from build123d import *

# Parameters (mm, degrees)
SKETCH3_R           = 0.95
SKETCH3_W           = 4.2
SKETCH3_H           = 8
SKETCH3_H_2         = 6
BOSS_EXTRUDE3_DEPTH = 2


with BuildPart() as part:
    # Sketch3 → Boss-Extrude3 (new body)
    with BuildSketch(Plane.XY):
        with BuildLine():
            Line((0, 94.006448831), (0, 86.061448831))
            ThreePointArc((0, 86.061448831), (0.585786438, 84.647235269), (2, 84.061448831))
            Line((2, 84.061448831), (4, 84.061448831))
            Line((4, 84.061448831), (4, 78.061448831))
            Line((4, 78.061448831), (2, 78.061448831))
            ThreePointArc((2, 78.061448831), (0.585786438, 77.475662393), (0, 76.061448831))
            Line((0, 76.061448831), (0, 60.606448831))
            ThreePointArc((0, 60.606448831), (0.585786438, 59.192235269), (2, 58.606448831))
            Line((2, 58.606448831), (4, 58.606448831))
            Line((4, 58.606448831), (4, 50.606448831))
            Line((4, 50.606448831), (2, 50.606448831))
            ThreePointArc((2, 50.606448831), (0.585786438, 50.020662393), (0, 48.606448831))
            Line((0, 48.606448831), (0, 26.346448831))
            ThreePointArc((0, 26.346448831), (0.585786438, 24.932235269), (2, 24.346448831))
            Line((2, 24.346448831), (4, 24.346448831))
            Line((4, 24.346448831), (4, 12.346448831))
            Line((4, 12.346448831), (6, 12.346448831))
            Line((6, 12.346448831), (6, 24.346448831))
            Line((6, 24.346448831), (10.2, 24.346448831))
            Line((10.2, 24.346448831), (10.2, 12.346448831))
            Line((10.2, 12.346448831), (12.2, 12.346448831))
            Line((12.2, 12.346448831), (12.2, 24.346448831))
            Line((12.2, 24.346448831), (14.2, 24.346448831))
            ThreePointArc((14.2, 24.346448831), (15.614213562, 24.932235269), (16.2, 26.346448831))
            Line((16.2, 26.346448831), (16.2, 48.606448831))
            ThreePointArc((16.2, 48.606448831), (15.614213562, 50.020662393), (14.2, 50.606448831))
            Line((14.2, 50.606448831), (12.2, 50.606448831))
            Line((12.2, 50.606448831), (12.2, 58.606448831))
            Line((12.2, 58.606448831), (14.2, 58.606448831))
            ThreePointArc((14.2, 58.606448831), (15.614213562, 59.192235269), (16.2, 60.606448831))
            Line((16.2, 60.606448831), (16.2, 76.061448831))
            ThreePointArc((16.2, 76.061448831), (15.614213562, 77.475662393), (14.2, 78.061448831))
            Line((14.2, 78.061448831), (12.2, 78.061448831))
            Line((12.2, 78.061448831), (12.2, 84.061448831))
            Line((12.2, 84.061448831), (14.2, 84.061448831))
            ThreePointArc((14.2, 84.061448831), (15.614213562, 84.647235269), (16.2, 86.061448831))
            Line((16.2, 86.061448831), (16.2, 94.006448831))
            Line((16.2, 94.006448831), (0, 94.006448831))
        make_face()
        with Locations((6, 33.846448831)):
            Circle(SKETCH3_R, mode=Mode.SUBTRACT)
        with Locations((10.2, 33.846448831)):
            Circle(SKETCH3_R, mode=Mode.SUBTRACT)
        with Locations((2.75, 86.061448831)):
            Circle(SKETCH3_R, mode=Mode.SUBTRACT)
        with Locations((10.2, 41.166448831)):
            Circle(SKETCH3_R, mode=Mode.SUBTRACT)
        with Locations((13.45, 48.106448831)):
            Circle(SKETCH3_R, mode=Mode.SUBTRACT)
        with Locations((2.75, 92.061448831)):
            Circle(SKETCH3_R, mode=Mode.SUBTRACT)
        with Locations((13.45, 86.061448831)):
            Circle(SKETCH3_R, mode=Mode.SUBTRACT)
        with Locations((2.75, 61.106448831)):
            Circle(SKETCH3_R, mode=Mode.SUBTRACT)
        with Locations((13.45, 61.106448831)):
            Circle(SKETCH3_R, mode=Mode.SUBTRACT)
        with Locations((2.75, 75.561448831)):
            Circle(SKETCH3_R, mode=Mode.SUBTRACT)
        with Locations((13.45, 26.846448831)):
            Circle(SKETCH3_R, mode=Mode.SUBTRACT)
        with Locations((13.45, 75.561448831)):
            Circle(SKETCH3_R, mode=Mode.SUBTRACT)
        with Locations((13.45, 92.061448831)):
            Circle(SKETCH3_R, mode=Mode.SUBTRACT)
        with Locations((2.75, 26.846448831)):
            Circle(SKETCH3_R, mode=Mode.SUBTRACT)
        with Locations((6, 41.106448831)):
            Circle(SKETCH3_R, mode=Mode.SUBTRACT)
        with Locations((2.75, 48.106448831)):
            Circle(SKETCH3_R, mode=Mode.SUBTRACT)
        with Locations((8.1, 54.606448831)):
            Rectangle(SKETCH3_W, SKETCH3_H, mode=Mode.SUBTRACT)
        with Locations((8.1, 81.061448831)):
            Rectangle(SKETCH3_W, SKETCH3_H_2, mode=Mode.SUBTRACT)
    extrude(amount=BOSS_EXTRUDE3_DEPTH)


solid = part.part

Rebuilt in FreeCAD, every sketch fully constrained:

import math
import FreeCAD as App
import Part
import Sketcher

doc = App.newDocument("Part")
body = doc.addObject("PartDesign::Body", "Body")

sketch1 = doc.addObject("Sketcher::SketchObject", "Sketch")
body.addObject(sketch1)
sketch1.AttachmentSupport = (doc.XY_Plane, [""])
sketch1.MapMode = "FlatFace"
sketch1.addGeometry([
    Part.LineSegment(App.Vector(0, 94.006449, 0), App.Vector(0, 86.061449, 0)),
    Part.ArcOfCircle(Part.Circle(App.Vector(2, 86.061449, 0), App.Vector(0, 0, 1), 2), math.radians(-180), math.radians(-90)),
    Part.LineSegment(App.Vector(2, 84.061449, 0), App.Vector(4, 84.061449, 0)),
    Part.LineSegment(App.Vector(4, 84.061449, 0), App.Vector(4, 78.061449, 0)),
    Part.LineSegment(App.Vector(4, 78.061449, 0), App.Vector(2, 78.061449, 0)),
    Part.ArcOfCircle(Part.Circle(App.Vector(2, 76.061449, 0), App.Vector(0, 0, 1), 2), math.radians(90), math.radians(180)),
    Part.LineSegment(App.Vector(0, 76.061449, 0), App.Vector(0, 60.606449, 0)),
    Part.ArcOfCircle(Part.Circle(App.Vector(2, 60.606449, 0), App.Vector(0, 0, 1), 2), math.radians(-180), math.radians(-90)),
    Part.LineSegment(App.Vector(2, 58.606449, 0), App.Vector(4, 58.606449, 0)),
    Part.LineSegment(App.Vector(4, 58.606449, 0), App.Vector(4, 50.606449, 0)),
    Part.LineSegment(App.Vector(4, 50.606449, 0), App.Vector(2, 50.606449, 0)),
    Part.ArcOfCircle(Part.Circle(App.Vector(2, 48.606449, 0), App.Vector(0, 0, 1), 2), math.radians(90), math.radians(180)),
    Part.LineSegment(App.Vector(0, 48.606449, 0), App.Vector(0, 26.346449, 0)),
    Part.ArcOfCircle(Part.Circle(App.Vector(2, 26.346449, 0), App.Vector(0, 0, 1), 2), math.radians(-180), math.radians(-90)),
    Part.LineSegment(App.Vector(2, 24.346449, 0), App.Vector(4, 24.346449, 0)),
    Part.LineSegment(App.Vector(4, 24.346449, 0), App.Vector(4, 12.346449, 0)),
    Part.LineSegment(App.Vector(4, 12.346449, 0), App.Vector(6, 12.346449, 0)),
    Part.LineSegment(App.Vector(6, 12.346449, 0), App.Vector(6, 24.346449, 0)),
    Part.LineSegment(App.Vector(6, 24.346449, 0), App.Vector(10.2, 24.346449, 0)),
    Part.LineSegment(App.Vector(10.2, 24.346449, 0), App.Vector(10.2, 12.346449, 0)),
    Part.LineSegment(App.Vector(10.2, 12.346449, 0), App.Vector(12.2, 12.346449, 0)),
    Part.LineSegment(App.Vector(12.2, 12.346449, 0), App.Vector(12.2, 24.346449, 0)),
    Part.LineSegment(App.Vector(12.2, 24.346449, 0), App.Vector(14.2, 24.346449, 0)),
    Part.ArcOfCircle(Part.Circle(App.Vector(14.2, 26.346449, 0), App.Vector(0, 0, 1), 2), math.radians(-90), math.radians(0)),
    Part.LineSegment(App.Vector(16.2, 26.346449, 0), App.Vector(16.2, 48.606449, 0)),
    Part.ArcOfCircle(Part.Circle(App.Vector(14.2, 48.606449, 0), App.Vector(0, 0, 1), 2), math.radians(0), math.radians(90)),
    Part.LineSegment(App.Vector(14.2, 50.606449, 0), App.Vector(12.2, 50.606449, 0)),
    Part.LineSegment(App.Vector(12.2, 50.606449, 0), App.Vector(12.2, 58.606449, 0)),
    Part.LineSegment(App.Vector(12.2, 58.606449, 0), App.Vector(14.2, 58.606449, 0)),
    Part.ArcOfCircle(Part.Circle(App.Vector(14.2, 60.606449, 0), App.Vector(0, 0, 1), 2), math.radians(-90), math.radians(0)),
    Part.LineSegment(App.Vector(16.2, 60.606449, 0), App.Vector(16.2, 76.061449, 0)),
    Part.ArcOfCircle(Part.Circle(App.Vector(14.2, 76.061449, 0), App.Vector(0, 0, 1), 2), math.radians(0), math.radians(90)),
    Part.LineSegment(App.Vector(14.2, 78.061449, 0), App.Vector(12.2, 78.061449, 0)),
    Part.LineSegment(App.Vector(12.2, 78.061449, 0), App.Vector(12.2, 84.061449, 0)),
    Part.LineSegment(App.Vector(12.2, 84.061449, 0), App.Vector(14.2, 84.061449, 0)),
    Part.ArcOfCircle(Part.Circle(App.Vector(14.2, 86.061449, 0), App.Vector(0, 0, 1), 2), math.radians(-90), math.radians(0)),
    Part.LineSegment(App.Vector(16.2, 86.061449, 0), App.Vector(16.2, 94.006449, 0)),
    Part.LineSegment(App.Vector(16.2, 94.006449, 0), App.Vector(0, 94.006449, 0)),
    Part.Circle(App.Vector(2.75, 26.846449, 0), App.Vector(0, 0, 1), 0.95),
    Part.Circle(App.Vector(6, 33.846449, 0), App.Vector(0, 0, 1), 0.95),
    Part.Circle(App.Vector(6, 41.106449, 0), App.Vector(0, 0, 1), 0.95),
    Part.Circle(App.Vector(2.75, 48.106449, 0), App.Vector(0, 0, 1), 0.95),
    Part.Circle(App.Vector(10.2, 33.846449, 0), App.Vector(0, 0, 1), 0.95),
    Part.Circle(App.Vector(10.2, 41.166449, 0), App.Vector(0, 0, 1), 0.95),
    Part.Circle(App.Vector(13.45, 26.846449, 0), App.Vector(0, 0, 1), 0.95),
    Part.LineSegment(App.Vector(10.2, 50.606449, 0), App.Vector(6, 50.606449, 0)),
    Part.LineSegment(App.Vector(6, 50.606449, 0), App.Vector(6, 58.606449, 0)),
    Part.LineSegment(App.Vector(6, 58.606449, 0), App.Vector(10.2, 58.606449, 0)),
    Part.LineSegment(App.Vector(10.2, 58.606449, 0), App.Vector(10.2, 50.606449, 0)),
    Part.Circle(App.Vector(13.45, 48.106449, 0), App.Vector(0, 0, 1), 0.95),
    Part.Circle(App.Vector(2.75, 61.106449, 0), App.Vector(0, 0, 1), 0.95),
    Part.Circle(App.Vector(2.75, 75.561449, 0), App.Vector(0, 0, 1), 0.95),
    Part.Circle(App.Vector(2.75, 86.061449, 0), App.Vector(0, 0, 1), 0.95),
    Part.Circle(App.Vector(2.75, 92.061449, 0), App.Vector(0, 0, 1), 0.95),
    Part.Circle(App.Vector(13.45, 61.106449, 0), App.Vector(0, 0, 1), 0.95),
    Part.Circle(App.Vector(13.45, 75.561449, 0), App.Vector(0, 0, 1), 0.95),
    Part.LineSegment(App.Vector(10.2, 78.061449, 0), App.Vector(6, 78.061449, 0)),
    Part.LineSegment(App.Vector(6, 78.061449, 0), App.Vector(6, 84.061449, 0)),
    Part.LineSegment(App.Vector(6, 84.061449, 0), App.Vector(10.2, 84.061449, 0)),
    Part.LineSegment(App.Vector(10.2, 84.061449, 0), App.Vector(10.2, 78.061449, 0)),
    Part.Circle(App.Vector(13.45, 86.061449, 0), App.Vector(0, 0, 1), 0.95),
    Part.Circle(App.Vector(13.45, 92.061449, 0), App.Vector(0, 0, 1), 0.95),
], False)
sketch1.addConstraint([
    Sketcher.Constraint("Tangent", 0, 2, 1, 1),
    Sketcher.Constraint("Tangent", 1, 2, 2, 1),
    Sketcher.Constraint("Coincident", 2, 2, 3, 1),
    Sketcher.Constraint("Coincident", 3, 2, 4, 1),
    Sketcher.Constraint("Tangent", 4, 2, 5, 1),
    Sketcher.Constraint("Tangent", 5, 2, 6, 1),
    Sketcher.Constraint("Tangent", 6, 2, 7, 1),
    Sketcher.Constraint("Tangent", 7, 2, 8, 1),
    Sketcher.Constraint("Coincident", 8, 2, 9, 1),
    Sketcher.Constraint("Coincident", 9, 2, 10, 1),
    Sketcher.Constraint("Tangent", 10, 2, 11, 1),
    Sketcher.Constraint("Tangent", 11, 2, 12, 1),
    Sketcher.Constraint("Tangent", 12, 2, 13, 1),
    Sketcher.Constraint("Tangent", 13, 2, 14, 1),
    Sketcher.Constraint("Coincident", 14, 2, 15, 1),
    Sketcher.Constraint("Coincident", 15, 2, 16, 1),
    Sketcher.Constraint("Coincident", 16, 2, 17, 1),
    Sketcher.Constraint("Coincident", 17, 2, 18, 1),
    Sketcher.Constraint("Coincident", 18, 2, 19, 1),
    Sketcher.Constraint("Coincident", 19, 2, 20, 1),
    Sketcher.Constraint("Coincident", 20, 2, 21, 1),
    Sketcher.Constraint("Coincident", 21, 2, 22, 1),
    Sketcher.Constraint("Tangent", 22, 2, 23, 1),
    Sketcher.Constraint("Tangent", 23, 2, 24, 1),
    Sketcher.Constraint("Tangent", 24, 2, 25, 1),
    Sketcher.Constraint("Tangent", 25, 2, 26, 1),
    Sketcher.Constraint("Coincident", 26, 2, 27, 1),
    Sketcher.Constraint("Coincident", 27, 2, 28, 1),
    Sketcher.Constraint("Tangent", 28, 2, 29, 1),
    Sketcher.Constraint("Tangent", 29, 2, 30, 1),
    Sketcher.Constraint("Tangent", 30, 2, 31, 1),
    Sketcher.Constraint("Tangent", 31, 2, 32, 1),
    Sketcher.Constraint("Coincident", 32, 2, 33, 1),
    Sketcher.Constraint("Coincident", 33, 2, 34, 1),
    Sketcher.Constraint("Tangent", 34, 2, 35, 1),
    Sketcher.Constraint("Tangent", 35, 2, 36, 1),
    Sketcher.Constraint("Coincident", 36, 2, 37, 1),
    Sketcher.Constraint("Coincident", 37, 2, 0, 1),
    Sketcher.Constraint("Coincident", 45, 2, 46, 1),
    Sketcher.Constraint("Coincident", 46, 2, 47, 1),
    Sketcher.Constraint("Coincident", 47, 2, 48, 1),
    Sketcher.Constraint("Coincident", 48, 2, 45, 1),
    Sketcher.Constraint("Coincident", 56, 2, 57, 1),
    Sketcher.Constraint("Coincident", 57, 2, 58, 1),
    Sketcher.Constraint("Coincident", 58, 2, 59, 1),
    Sketcher.Constraint("Coincident", 59, 2, 56, 1),
    Sketcher.Constraint("Vertical", 0),
    Sketcher.Constraint("Horizontal", 2),
    Sketcher.Constraint("Vertical", 3),
    Sketcher.Constraint("Horizontal", 4),
    Sketcher.Constraint("Vertical", 6),
    Sketcher.Constraint("Horizontal", 8),
    Sketcher.Constraint("Vertical", 9),
    Sketcher.Constraint("Horizontal", 10),
    Sketcher.Constraint("Vertical", 12),
    Sketcher.Constraint("Horizontal", 14),
    Sketcher.Constraint("Vertical", 15),
    Sketcher.Constraint("Horizontal", 16),
    Sketcher.Constraint("Vertical", 17),
    Sketcher.Constraint("Horizontal", 18),
    Sketcher.Constraint("Vertical", 19),
    Sketcher.Constraint("Horizontal", 20),
    Sketcher.Constraint("Vertical", 21),
    Sketcher.Constraint("Horizontal", 22),
    Sketcher.Constraint("Vertical", 24),
    Sketcher.Constraint("Horizontal", 26),
    Sketcher.Constraint("Vertical", 27),
    Sketcher.Constraint("Horizontal", 28),
    Sketcher.Constraint("Vertical", 30),
    Sketcher.Constraint("Horizontal", 32),
    Sketcher.Constraint("Vertical", 33),
    Sketcher.Constraint("Horizontal", 34),
    Sketcher.Constraint("Vertical", 36),
    Sketcher.Constraint("Horizontal", 37),
    Sketcher.Constraint("Horizontal", 45),
    Sketcher.Constraint("Vertical", 46),
    Sketcher.Constraint("Horizontal", 47),
    Sketcher.Constraint("Vertical", 48),
    Sketcher.Constraint("Horizontal", 56),
    Sketcher.Constraint("Vertical", 57),
    Sketcher.Constraint("Horizontal", 58),
    Sketcher.Constraint("Vertical", 59),
    Sketcher.Constraint("Equal", 1, 5),
    Sketcher.Constraint("Equal", 5, 7),
    Sketcher.Constraint("Equal", 7, 11),
    Sketcher.Constraint("Equal", 11, 13),
    Sketcher.Constraint("Equal", 13, 23),
    Sketcher.Constraint("Equal", 23, 25),
    Sketcher.Constraint("Equal", 25, 29),
    Sketcher.Constraint("Equal", 29, 31),
    Sketcher.Constraint("Equal", 31, 35),
    Sketcher.Constraint("Equal", 38, 39),
    Sketcher.Constraint("Equal", 39, 40),
    Sketcher.Constraint("Equal", 40, 41),
    Sketcher.Constraint("Equal", 41, 42),
    Sketcher.Constraint("Equal", 42, 43),
    Sketcher.Constraint("Equal", 43, 44),
    Sketcher.Constraint("Equal", 44, 49),
    Sketcher.Constraint("Equal", 49, 50),
    Sketcher.Constraint("Equal", 50, 51),
    Sketcher.Constraint("Equal", 51, 52),
    Sketcher.Constraint("Equal", 52, 53),
    Sketcher.Constraint("Equal", 53, 54),
    Sketcher.Constraint("Equal", 54, 55),
    Sketcher.Constraint("Equal", 55, 60),
    Sketcher.Constraint("Equal", 60, 61),
    Sketcher.Constraint("PointOnObject", 0, 2, -2),
    Sketcher.Constraint("PointOnObject", 5, 2, -2),
    Sketcher.Constraint("PointOnObject", 11, 2, -2),
    Sketcher.Constraint("Horizontal", 13, 3, 23, 3),
    Sketcher.Constraint("Horizontal", 11, 3, 25, 3),
    Sketcher.Constraint("Horizontal", 7, 3, 29, 3),
    Sketcher.Constraint("Horizontal", 5, 3, 31, 3),
    Sketcher.Constraint("Horizontal", 1, 3, 35, 3),
    Sketcher.Constraint("Horizontal", 39, 3, 42, 3),
    Sketcher.Constraint("Horizontal", 38, 3, 44, 3),
    Sketcher.Constraint("Horizontal", 41, 3, 49, 3),
    Sketcher.Constraint("Horizontal", 35, 3, 52, 3),
    Sketcher.Constraint("Horizontal", 50, 3, 54, 3),
    Sketcher.Constraint("Horizontal", 51, 3, 55, 3),
    Sketcher.Constraint("Horizontal", 52, 3, 60, 3),
    Sketcher.Constraint("Horizontal", 53, 3, 61, 3),
    Sketcher.Constraint("Horizontal", 14, 2, 17, 2),
    Sketcher.Constraint("Horizontal", 16, 2, 19, 2),
    Sketcher.Constraint("Horizontal", 26, 2, 45, 2),
    Sketcher.Constraint("Horizontal", 28, 2, 46, 2),
    Sketcher.Constraint("Horizontal", 32, 2, 56, 2),
    Sketcher.Constraint("Horizontal", 34, 2, 57, 2),
    Sketcher.Constraint("Vertical", 25, 3, 29, 3),
    Sketcher.Constraint("Vertical", 31, 3, 35, 3),
    Sketcher.Constraint("Vertical", 39, 3, 40, 3),
    Sketcher.Constraint("Vertical", 38, 3, 41, 3),
    Sketcher.Constraint("Vertical", 42, 3, 43, 3),
    Sketcher.Constraint("Vertical", 44, 3, 49, 3),
    Sketcher.Constraint("Vertical", 41, 3, 50, 3),
    Sketcher.Constraint("Vertical", 50, 3, 51, 3),
    Sketcher.Constraint("Vertical", 51, 3, 52, 3),
    Sketcher.Constraint("Vertical", 52, 3, 53, 3),
    Sketcher.Constraint("Vertical", 49, 3, 54, 3),
    Sketcher.Constraint("Vertical", 54, 3, 55, 3),
    Sketcher.Constraint("Vertical", 55, 3, 60, 3),
    Sketcher.Constraint("Vertical", 60, 3, 61, 3),
    Sketcher.Constraint("Vertical", 3, 2, 8, 2),
    Sketcher.Constraint("Vertical", 9, 2, 14, 2),
    Sketcher.Constraint("Vertical", 40, 3, 16, 2),
    Sketcher.Constraint("Vertical", 43, 3, 18, 2),
    Sketcher.Constraint("Vertical", 21, 2, 26, 2),
    Sketcher.Constraint("Vertical", 27, 2, 32, 2),
    Sketcher.Constraint("Vertical", 17, 2, 45, 2),
    Sketcher.Constraint("Vertical", 19, 2, 47, 2),
    Sketcher.Constraint("Vertical", 46, 2, 56, 2),
    Sketcher.Constraint("Vertical", 48, 2, 58, 2),
    Sketcher.Constraint("Equal", 14, 16),
    Sketcher.Constraint("Equal", 16, 20),
    Sketcher.Constraint("Equal", 20, 22),
    Sketcher.Constraint("Radius", 1, 2.0),
    Sketcher.Constraint("Diameter", 38, 1.9),
    Sketcher.Constraint("DistanceX", 2, 1, 2, 2, 2.0),
    Sketcher.Constraint("DistanceY", 3, 2, 3, 1, 6.0),
    Sketcher.Constraint("DistanceY", 9, 2, 9, 1, 8.0),
    Sketcher.Constraint("DistanceY", 15, 2, 15, 1, 12.0),
    Sketcher.Constraint("DistanceX", 18, 1, 18, 2, 4.2),
    Sketcher.Constraint("DistanceY", 12, 2, 12, 1, 22.26),
    Sketcher.Constraint("DistanceY", 0, 2, 0, 1, 7.945),
    Sketcher.Constraint("DistanceY", 6, 2, 6, 1, 15.455),
    Sketcher.Constraint("DistanceX", -1, 1, 38, 3, 2.75),
    Sketcher.Constraint("DistanceX", -1, 1, 44, 3, 13.45),
    Sketcher.Constraint("DistanceY", -1, 1, 1, 3, 86.061449),
    Sketcher.Constraint("DistanceY", -1, 1, 38, 3, 26.846449),
    Sketcher.Constraint("DistanceY", -1, 1, 39, 3, 33.846449),
    Sketcher.Constraint("DistanceY", -1, 1, 40, 3, 41.106449),
    Sketcher.Constraint("DistanceY", -1, 1, 41, 3, 48.106449),
    Sketcher.Constraint("DistanceY", -1, 1, 43, 3, 41.166449),
    Sketcher.Constraint("DistanceY", -1, 1, 50, 3, 61.106449),
    Sketcher.Constraint("DistanceY", -1, 1, 51, 3, 75.561449),
    Sketcher.Constraint("DistanceY", -1, 1, 53, 3, 92.061449),
])
pad1 = doc.addObject("PartDesign::Pad", "Pad")
body.addObject(pad1)
pad1.Profile = sketch1
pad1.Length = 2

doc.recompute()
